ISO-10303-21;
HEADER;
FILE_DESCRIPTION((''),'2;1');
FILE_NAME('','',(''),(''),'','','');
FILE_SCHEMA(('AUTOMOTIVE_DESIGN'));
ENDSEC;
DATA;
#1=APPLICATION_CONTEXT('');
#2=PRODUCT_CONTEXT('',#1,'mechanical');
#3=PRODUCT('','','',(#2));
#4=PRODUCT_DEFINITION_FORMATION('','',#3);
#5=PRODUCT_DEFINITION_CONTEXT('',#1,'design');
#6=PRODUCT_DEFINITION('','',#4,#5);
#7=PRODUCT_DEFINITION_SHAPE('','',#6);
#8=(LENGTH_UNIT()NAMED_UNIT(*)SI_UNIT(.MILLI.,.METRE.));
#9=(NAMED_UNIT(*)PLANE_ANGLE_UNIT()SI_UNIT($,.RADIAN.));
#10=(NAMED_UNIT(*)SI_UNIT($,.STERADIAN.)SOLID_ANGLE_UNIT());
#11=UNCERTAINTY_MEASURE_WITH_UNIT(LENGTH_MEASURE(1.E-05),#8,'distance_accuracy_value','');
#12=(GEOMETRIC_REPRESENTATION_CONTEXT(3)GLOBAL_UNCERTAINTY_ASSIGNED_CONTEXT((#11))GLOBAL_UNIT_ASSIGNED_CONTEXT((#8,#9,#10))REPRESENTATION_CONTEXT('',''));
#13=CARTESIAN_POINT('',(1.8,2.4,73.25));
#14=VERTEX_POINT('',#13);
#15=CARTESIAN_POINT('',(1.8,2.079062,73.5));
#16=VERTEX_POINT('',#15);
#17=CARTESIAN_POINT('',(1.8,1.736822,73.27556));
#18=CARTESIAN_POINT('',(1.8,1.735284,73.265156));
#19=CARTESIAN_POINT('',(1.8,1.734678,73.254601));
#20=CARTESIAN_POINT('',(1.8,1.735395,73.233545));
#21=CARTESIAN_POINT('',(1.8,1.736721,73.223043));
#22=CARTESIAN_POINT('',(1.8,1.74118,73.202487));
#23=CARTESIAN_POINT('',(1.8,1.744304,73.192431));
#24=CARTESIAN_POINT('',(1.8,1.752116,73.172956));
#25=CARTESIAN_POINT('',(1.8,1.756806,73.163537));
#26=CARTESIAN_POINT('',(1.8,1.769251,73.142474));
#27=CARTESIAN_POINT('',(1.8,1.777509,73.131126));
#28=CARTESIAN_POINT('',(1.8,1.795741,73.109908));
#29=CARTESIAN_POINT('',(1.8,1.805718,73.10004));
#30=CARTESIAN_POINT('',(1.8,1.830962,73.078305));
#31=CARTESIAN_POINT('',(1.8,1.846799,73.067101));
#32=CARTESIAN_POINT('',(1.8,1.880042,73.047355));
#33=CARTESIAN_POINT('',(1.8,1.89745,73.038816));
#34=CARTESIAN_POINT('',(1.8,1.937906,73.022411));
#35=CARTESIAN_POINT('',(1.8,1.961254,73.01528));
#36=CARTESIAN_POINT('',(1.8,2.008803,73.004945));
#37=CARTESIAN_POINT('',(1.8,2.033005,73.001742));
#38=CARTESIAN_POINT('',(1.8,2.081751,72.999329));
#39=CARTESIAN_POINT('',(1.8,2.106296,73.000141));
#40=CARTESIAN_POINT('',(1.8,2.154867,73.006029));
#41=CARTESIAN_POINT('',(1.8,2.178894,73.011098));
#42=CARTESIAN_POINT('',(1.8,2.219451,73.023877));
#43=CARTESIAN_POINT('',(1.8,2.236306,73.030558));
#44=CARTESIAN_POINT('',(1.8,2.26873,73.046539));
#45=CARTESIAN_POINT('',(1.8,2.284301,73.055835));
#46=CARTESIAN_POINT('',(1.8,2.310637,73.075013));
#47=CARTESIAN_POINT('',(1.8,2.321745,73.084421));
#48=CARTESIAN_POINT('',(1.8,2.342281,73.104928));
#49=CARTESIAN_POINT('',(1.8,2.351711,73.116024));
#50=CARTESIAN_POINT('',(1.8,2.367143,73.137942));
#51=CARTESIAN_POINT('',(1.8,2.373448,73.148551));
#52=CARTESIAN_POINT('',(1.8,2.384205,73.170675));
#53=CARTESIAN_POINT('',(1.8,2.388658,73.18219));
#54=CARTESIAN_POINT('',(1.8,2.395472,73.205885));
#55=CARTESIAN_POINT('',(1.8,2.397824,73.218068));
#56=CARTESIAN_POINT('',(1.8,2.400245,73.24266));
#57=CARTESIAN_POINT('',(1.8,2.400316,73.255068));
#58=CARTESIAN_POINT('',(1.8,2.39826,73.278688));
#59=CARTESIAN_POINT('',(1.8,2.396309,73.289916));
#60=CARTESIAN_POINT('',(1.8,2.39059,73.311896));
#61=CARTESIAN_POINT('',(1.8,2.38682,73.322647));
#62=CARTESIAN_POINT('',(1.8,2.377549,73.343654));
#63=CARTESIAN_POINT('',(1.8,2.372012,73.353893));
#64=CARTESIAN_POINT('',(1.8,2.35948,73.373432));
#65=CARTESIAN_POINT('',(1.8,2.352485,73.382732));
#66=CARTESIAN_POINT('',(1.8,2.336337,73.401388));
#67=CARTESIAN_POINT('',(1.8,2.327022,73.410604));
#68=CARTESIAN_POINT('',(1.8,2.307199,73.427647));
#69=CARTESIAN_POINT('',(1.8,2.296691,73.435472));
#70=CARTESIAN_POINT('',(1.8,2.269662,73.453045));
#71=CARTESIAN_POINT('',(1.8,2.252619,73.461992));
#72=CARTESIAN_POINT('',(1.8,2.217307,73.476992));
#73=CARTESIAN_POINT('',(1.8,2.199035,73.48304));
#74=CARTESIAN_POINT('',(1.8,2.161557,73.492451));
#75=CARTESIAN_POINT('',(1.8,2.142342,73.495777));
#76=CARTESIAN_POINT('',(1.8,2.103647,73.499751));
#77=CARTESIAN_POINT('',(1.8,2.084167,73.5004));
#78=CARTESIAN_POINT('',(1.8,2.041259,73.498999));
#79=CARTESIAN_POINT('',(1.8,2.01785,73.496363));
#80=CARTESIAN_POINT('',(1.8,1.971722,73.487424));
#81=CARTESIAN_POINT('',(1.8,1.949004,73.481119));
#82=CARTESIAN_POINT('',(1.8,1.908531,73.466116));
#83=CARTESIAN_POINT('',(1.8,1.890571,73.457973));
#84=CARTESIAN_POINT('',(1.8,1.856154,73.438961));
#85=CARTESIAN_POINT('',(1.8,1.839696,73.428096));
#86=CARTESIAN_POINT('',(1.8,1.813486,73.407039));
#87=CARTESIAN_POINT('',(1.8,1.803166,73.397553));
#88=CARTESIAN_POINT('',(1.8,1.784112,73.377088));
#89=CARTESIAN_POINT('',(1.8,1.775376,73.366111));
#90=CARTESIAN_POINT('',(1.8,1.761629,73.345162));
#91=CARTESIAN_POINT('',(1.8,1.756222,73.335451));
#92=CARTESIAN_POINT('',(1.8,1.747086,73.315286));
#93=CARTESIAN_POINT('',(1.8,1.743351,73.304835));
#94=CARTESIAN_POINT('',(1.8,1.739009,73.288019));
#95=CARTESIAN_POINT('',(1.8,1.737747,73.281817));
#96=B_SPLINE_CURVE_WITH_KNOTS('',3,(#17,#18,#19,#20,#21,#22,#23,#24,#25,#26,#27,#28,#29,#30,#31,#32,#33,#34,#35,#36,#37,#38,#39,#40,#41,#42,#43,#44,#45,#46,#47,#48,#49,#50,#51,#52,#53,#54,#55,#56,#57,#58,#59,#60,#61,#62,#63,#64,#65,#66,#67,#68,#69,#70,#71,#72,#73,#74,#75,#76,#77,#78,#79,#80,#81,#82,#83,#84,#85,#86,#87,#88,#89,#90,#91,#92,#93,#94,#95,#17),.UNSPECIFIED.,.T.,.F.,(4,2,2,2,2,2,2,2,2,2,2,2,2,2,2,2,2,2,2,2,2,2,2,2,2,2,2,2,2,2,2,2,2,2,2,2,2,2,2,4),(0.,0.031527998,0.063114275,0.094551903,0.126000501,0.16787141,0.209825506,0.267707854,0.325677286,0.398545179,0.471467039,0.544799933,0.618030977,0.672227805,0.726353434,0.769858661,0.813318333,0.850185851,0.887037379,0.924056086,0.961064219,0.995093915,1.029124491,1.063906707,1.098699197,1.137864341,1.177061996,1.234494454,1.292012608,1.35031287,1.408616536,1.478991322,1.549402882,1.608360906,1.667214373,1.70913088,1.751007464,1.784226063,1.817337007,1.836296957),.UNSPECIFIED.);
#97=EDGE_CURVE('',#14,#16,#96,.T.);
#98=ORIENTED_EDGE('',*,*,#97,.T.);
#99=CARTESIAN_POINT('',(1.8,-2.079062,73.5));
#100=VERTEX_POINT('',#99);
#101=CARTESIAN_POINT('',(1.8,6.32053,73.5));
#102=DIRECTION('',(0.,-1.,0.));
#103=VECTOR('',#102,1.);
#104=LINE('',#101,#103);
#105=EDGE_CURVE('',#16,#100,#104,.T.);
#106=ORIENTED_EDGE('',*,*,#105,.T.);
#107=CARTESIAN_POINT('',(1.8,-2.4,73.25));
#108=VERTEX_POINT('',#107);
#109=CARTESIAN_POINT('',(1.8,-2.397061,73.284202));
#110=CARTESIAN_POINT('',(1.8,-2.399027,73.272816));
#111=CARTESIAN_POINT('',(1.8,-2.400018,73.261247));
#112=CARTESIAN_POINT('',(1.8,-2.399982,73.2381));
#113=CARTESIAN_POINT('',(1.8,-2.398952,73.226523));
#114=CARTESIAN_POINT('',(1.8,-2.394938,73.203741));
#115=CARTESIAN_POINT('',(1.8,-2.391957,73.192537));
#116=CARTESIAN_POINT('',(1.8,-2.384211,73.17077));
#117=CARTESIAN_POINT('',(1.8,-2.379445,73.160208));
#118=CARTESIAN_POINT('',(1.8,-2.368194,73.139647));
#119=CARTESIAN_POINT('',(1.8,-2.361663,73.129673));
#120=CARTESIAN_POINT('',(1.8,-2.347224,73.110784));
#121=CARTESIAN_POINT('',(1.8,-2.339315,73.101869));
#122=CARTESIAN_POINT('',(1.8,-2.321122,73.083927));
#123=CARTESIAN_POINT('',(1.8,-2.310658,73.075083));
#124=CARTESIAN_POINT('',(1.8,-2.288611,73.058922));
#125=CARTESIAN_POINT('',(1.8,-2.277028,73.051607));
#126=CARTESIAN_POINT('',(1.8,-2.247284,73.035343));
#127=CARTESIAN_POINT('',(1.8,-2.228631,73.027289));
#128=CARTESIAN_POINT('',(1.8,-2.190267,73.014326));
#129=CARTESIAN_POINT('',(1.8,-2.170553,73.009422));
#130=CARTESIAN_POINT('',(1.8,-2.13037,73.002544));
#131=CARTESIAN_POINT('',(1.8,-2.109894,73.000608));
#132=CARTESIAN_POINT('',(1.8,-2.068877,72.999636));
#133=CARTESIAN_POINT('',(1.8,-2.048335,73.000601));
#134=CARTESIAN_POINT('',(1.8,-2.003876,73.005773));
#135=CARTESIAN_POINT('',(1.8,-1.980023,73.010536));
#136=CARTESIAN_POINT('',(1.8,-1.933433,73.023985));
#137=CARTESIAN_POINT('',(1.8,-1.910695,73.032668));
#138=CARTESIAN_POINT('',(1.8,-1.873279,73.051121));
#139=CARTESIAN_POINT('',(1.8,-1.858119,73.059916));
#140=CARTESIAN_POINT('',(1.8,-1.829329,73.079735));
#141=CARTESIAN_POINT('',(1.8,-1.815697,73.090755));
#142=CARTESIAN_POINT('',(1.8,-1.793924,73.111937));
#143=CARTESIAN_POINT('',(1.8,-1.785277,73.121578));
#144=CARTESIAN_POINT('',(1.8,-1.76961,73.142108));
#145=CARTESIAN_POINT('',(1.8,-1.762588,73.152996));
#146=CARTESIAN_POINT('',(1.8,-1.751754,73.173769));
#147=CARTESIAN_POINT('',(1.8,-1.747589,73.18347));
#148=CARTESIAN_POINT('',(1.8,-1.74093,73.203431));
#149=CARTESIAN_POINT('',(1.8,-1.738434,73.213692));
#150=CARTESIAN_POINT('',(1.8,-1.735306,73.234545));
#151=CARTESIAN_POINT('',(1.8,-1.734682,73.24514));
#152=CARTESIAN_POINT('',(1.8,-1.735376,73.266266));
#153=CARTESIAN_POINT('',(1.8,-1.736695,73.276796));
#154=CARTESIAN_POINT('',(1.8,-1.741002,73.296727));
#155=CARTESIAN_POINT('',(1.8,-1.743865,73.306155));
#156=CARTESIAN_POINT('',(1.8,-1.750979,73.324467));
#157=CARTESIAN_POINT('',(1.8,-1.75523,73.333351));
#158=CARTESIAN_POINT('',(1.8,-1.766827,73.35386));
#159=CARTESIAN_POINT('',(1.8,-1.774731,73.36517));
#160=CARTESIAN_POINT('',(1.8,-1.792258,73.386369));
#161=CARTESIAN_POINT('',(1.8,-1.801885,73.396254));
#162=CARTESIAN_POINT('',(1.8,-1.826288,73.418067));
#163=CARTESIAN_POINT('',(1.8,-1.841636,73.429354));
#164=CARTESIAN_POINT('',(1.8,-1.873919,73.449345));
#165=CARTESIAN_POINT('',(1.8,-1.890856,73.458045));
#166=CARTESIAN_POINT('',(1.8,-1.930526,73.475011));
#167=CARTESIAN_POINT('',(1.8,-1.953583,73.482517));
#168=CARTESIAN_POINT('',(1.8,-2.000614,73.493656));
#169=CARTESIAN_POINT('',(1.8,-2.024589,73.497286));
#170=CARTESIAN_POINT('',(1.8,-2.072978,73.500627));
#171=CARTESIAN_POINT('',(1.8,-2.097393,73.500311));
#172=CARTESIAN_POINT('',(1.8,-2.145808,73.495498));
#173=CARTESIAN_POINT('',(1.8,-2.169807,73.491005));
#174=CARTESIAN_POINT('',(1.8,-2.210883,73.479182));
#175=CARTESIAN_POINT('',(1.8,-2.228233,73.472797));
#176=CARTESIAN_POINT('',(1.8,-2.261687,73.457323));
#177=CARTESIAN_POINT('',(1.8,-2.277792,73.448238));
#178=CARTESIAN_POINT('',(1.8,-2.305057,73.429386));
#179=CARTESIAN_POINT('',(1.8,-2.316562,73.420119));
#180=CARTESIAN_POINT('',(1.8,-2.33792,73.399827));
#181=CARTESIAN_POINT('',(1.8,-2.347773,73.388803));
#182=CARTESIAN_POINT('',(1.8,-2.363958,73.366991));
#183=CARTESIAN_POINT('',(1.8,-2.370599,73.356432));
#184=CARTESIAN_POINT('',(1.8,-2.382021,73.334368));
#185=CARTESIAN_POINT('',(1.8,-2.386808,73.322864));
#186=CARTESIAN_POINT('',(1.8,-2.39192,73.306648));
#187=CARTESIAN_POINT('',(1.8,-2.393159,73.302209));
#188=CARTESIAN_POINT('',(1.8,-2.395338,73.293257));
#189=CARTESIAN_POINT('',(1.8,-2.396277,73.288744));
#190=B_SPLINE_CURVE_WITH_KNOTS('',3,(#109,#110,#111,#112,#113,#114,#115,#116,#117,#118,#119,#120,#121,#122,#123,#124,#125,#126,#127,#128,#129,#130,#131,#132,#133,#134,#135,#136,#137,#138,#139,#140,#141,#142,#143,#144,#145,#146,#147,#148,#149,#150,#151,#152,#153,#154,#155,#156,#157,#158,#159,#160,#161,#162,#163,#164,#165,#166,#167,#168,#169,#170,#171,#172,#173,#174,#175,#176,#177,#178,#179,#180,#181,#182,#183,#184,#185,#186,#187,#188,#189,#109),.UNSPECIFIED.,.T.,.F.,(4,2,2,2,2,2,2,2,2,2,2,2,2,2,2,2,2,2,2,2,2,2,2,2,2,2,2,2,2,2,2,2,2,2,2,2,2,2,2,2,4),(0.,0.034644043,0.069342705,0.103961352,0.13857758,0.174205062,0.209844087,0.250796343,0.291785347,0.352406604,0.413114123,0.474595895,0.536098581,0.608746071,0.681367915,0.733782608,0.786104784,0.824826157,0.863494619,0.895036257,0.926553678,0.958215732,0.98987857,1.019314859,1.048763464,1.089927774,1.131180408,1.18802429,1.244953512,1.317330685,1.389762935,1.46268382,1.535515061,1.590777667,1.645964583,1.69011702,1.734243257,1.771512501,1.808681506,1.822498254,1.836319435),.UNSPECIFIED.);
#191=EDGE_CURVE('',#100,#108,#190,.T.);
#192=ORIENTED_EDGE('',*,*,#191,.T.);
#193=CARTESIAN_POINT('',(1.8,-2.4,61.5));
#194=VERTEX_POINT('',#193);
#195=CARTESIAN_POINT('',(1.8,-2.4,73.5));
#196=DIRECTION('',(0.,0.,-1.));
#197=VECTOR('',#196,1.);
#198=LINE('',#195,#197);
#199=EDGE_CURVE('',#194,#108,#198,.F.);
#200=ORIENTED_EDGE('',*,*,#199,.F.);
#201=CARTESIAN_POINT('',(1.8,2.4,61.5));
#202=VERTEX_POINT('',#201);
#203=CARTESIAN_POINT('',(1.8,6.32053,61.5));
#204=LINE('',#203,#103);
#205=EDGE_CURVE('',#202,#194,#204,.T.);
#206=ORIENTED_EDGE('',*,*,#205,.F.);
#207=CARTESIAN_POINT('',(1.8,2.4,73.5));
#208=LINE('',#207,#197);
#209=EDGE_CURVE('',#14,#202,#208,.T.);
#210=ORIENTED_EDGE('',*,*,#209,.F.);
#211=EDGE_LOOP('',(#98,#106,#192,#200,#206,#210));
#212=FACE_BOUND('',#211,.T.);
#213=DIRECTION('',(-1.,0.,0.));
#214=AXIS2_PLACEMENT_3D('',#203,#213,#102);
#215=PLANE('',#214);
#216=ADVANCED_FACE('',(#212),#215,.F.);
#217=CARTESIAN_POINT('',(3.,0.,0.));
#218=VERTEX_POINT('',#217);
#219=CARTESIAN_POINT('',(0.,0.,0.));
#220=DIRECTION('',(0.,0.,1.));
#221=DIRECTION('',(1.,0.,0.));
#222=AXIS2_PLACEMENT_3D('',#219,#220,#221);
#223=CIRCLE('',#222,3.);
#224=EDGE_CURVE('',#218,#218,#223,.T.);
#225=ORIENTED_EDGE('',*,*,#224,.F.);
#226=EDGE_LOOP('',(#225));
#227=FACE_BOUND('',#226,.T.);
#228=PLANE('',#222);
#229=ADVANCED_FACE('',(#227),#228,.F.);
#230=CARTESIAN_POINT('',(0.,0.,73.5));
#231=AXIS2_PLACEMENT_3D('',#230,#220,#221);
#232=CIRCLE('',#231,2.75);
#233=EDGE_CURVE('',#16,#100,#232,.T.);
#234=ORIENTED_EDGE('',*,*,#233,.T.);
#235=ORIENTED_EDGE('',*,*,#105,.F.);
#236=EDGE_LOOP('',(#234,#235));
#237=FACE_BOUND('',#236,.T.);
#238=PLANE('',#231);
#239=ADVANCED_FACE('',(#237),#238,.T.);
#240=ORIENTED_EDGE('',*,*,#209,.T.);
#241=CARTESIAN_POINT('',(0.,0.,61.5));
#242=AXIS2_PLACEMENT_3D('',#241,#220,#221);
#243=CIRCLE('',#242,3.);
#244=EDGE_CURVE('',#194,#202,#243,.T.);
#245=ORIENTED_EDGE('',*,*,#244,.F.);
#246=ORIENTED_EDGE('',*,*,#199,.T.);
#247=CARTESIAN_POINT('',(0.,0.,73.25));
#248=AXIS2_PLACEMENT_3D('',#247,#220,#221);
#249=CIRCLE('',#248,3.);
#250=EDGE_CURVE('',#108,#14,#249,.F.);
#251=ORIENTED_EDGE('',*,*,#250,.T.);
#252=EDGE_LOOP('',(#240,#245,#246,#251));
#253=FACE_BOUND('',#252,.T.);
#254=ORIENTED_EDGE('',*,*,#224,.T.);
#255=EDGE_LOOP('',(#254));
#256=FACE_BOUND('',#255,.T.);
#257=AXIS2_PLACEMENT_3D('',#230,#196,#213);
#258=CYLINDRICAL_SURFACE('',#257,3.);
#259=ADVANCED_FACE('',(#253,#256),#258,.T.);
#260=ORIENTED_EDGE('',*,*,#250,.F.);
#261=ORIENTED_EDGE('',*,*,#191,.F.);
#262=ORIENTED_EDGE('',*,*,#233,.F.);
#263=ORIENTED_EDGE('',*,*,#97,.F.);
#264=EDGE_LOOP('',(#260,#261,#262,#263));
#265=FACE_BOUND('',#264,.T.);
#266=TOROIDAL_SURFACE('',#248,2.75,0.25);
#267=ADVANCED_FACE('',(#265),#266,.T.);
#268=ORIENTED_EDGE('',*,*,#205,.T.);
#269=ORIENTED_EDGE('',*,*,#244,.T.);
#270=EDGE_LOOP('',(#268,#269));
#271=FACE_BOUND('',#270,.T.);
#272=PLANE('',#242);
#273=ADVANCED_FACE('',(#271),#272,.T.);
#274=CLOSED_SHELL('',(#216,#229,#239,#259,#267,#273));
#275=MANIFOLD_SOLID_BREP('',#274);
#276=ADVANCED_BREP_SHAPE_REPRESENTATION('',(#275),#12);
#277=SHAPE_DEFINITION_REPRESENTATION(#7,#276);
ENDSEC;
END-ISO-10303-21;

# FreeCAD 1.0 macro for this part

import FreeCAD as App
import Part
import Sketcher

V = App.Vector


def edges_at(feature, points):
    """Names of the edges that pass closest to the given points."""
    edges = feature.Shape.Edges
    near = lambda p: min(range(len(edges)), key=lambda i: edges[i].distToShape(Part.Vertex(*p))[0])
    return sorted({f"Edge{near(p) + 1}" for p in points})


def add_polygon(sketch, points):
    """Adds a closed chain of lines whose ends are joined by coincident constraints."""
    first, n = sketch.GeometryCount, len(points)
    for a, b in zip(points, points[1:] + points[:1]):
        sketch.addGeometry(Part.LineSegment(App.Vector(*a, 0), App.Vector(*b, 0)), False)
    for i in range(n):
        sketch.addConstraint(Sketcher.Constraint("Coincident", first + i, 2, first + (i + 1) % n, 1))

doc = App.newDocument("Part")
body = doc.addObject("PartDesign::Body", "Body")

sketch1 = body.newObject("Sketcher::SketchObject", "Sketch")
sketch1.AttachmentSupport = (doc.getObject("XY_Plane"), [""])
sketch1.MapMode = "FlatFace"
sketch1.addGeometry(Part.Circle(V(0, 0, 0), V(0, 0, 1), 3), False)
sketch1.addConstraint(Sketcher.Constraint("Coincident", 0, 3, -1, 1))
sketch1.addConstraint(Sketcher.Constraint("Diameter", 0, 6.0))
pad1 = body.newObject("PartDesign::Pad", "Pad")
pad1.Profile = sketch1
pad1.Length = 73.5
doc.recompute()

fillet = body.newObject("PartDesign::Fillet", "Fillet")
fillet.Base = (pad1, edges_at(pad1, [(-3, 0, 73.5)]))
fillet.Radius = 0.25

sketch2 = body.newObject("Sketcher::SketchObject", "Sketch001")
sketch2.AttachmentSupport = (doc.getObject("XY_Plane"), [""])
sketch2.MapMode = "FlatFace"
sketch2.AttachmentOffset = App.Placement(V(0, 0, 73.5), App.Rotation())
add_polygon(sketch2, [(1.8, 6.3), (1.8, -3.7), (4.9, -3.7), (4.9, 6.3)])
sketch2.addConstraint(Sketcher.Constraint("Vertical", 0))
sketch2.addConstraint(Sketcher.Constraint("Horizontal", 1))
sketch2.addConstraint(Sketcher.Constraint("Vertical", 2))
sketch2.addConstraint(Sketcher.Constraint("Horizontal", 3))
sketch2.addConstraint(Sketcher.Constraint("DistanceY", 0, 2, 0, 1, 10.0))
sketch2.addConstraint(Sketcher.Constraint("DistanceX", -1, 1, 0, 2, 1.8))
sketch2.addConstraint(Sketcher.Constraint("DistanceX", 1, 1, 1, 2, 3.065124))
sketch2.addConstraint(Sketcher.Constraint("DistanceY", 0, 2, -1, 1, 3.67947))
pocket1 = body.newObject("PartDesign::Pocket", "Pocket")
pocket1.Profile = sketch2
pocket1.Length = 12

doc.recompute()
